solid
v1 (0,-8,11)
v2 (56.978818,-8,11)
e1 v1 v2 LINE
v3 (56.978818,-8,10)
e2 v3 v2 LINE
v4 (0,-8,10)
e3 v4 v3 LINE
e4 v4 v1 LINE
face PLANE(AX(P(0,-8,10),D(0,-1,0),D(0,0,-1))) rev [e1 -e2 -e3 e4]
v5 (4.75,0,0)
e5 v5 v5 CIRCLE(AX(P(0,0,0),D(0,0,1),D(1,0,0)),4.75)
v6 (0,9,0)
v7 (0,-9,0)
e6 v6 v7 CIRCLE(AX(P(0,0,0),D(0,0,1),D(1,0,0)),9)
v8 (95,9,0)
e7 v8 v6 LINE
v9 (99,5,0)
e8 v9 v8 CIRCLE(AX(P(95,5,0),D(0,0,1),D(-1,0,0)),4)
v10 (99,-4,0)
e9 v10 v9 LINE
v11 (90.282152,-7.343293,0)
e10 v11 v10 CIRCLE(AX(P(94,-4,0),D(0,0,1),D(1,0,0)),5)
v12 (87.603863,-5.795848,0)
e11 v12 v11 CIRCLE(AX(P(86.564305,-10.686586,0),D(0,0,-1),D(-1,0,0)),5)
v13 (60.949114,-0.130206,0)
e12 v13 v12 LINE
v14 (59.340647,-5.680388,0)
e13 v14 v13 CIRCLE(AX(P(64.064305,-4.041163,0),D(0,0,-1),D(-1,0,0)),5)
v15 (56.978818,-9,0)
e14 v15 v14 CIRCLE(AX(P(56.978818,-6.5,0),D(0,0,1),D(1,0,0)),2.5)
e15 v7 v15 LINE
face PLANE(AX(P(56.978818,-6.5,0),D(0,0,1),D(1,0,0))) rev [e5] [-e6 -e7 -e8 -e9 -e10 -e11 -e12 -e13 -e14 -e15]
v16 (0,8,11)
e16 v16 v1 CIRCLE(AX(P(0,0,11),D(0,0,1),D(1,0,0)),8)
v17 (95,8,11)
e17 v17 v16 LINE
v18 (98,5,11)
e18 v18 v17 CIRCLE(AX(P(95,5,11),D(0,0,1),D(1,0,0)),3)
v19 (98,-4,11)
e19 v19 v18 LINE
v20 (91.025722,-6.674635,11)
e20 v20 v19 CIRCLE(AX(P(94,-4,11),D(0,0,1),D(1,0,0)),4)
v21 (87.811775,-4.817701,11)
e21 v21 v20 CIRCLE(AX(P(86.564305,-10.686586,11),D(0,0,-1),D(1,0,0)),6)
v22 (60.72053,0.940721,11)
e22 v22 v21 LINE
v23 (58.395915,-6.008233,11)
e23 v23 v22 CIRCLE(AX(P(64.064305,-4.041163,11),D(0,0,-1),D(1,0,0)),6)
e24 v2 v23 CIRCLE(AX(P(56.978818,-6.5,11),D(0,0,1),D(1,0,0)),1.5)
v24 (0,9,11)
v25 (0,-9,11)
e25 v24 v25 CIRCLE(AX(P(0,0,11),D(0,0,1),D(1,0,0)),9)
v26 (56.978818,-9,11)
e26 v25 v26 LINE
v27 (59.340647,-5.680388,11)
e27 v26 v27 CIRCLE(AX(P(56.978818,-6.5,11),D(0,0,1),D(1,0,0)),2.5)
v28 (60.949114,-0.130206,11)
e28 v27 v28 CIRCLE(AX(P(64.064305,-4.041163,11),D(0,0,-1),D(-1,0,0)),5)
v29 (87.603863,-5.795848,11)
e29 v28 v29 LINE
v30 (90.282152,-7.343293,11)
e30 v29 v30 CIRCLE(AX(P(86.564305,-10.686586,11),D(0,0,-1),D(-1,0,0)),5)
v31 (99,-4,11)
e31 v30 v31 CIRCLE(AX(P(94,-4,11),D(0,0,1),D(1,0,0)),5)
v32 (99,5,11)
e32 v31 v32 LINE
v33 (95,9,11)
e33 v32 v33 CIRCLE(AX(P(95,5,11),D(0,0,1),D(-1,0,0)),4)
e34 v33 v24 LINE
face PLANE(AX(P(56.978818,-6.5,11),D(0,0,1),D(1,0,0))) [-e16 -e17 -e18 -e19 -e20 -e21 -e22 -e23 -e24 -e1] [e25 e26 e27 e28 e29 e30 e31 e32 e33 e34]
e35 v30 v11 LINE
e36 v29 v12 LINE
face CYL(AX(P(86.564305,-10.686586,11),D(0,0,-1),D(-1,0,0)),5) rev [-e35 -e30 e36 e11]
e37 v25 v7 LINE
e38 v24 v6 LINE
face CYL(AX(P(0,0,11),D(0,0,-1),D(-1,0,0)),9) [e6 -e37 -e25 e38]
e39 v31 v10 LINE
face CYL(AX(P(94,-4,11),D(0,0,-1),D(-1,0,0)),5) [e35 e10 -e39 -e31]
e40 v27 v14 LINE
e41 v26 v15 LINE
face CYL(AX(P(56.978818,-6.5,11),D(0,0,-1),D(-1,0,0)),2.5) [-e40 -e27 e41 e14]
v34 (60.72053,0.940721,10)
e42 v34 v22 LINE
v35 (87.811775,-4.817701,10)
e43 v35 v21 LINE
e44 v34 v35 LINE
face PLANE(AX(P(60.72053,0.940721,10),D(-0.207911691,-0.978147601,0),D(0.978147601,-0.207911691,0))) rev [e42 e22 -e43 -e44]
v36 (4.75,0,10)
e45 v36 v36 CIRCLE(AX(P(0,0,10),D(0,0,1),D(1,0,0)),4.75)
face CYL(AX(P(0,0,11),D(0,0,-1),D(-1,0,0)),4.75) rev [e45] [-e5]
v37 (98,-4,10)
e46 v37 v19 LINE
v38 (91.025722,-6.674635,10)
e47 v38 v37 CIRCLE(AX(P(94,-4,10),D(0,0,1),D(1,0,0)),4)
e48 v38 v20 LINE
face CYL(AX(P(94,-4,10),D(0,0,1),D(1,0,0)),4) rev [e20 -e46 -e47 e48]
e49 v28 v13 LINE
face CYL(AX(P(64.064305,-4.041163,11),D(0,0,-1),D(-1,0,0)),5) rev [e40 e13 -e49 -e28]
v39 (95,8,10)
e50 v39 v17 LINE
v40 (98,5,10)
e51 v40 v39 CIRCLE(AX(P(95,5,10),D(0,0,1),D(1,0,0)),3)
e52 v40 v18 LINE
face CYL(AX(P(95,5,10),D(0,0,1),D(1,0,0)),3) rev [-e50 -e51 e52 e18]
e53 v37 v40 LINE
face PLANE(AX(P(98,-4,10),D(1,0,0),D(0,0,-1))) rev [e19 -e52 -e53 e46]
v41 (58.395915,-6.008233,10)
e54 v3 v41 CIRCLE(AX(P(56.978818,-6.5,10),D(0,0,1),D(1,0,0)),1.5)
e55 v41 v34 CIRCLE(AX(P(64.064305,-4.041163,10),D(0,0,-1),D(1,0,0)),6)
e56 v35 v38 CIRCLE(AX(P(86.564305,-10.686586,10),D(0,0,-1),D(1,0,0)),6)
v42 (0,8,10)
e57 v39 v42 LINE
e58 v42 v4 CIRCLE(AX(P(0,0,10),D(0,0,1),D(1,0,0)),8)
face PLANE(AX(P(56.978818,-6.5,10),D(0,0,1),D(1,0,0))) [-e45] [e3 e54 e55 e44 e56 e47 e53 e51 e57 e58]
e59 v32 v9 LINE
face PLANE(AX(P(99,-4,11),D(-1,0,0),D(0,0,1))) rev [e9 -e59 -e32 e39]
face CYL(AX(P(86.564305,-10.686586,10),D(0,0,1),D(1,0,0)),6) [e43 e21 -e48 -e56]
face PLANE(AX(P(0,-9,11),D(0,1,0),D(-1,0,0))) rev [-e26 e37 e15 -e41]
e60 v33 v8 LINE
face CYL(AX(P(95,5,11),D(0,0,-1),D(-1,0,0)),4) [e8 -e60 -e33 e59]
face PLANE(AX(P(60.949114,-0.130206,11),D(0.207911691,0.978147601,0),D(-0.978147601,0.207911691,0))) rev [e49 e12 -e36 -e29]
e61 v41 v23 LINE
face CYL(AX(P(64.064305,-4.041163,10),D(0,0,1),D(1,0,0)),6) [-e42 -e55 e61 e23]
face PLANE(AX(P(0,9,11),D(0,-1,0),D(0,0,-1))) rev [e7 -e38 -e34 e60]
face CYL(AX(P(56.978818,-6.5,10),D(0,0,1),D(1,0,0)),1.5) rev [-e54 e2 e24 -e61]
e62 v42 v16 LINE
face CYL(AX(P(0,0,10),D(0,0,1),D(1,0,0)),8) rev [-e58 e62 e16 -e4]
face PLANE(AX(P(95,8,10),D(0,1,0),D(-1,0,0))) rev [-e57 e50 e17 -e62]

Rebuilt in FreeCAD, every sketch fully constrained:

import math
import FreeCAD as App
import Part
import Sketcher
from FreeCAD import Vector
Q = App.Units.Quantity

doc = App.newDocument("Part")
body = doc.addObject("PartDesign::Body", "Body")

# Sketch on XY plane
sketch1 = body.newObject("Sketcher::SketchObject", "Sketch")
sketch1.AttachmentSupport = (doc.getObject("XY_Plane"), [""])
sketch1.MapMode = "FlatFace"
sketch1.addGeometry([
    Part.LineSegment(Vector(0, -9, 0), Vector(57, -9, 0)),  # 0
    Part.ArcOfCircle(Part.Circle(Vector(57, -6.5, 0), Vector(0, 0, 1), 2.5), math.radians(-90), math.radians(19)),  # 1
    Part.ArcOfCircle(Part.Circle(Vector(64.1, -4, 0), Vector(0, 0, 1), 5), math.radians(129), math.radians(199)),  # 2
    Part.LineSegment(Vector(60.9, -0.1, 0), Vector(87.6, -5.8, 0)),  # 3
    Part.ArcOfCircle(Part.Circle(Vector(86.6, -10.7, 0), Vector(0, 0, 1), 5), math.radians(42), math.radians(78)),  # 4
    Part.ArcOfCircle(Part.Circle(Vector(94, -4, 0), Vector(0, 0, 1), 5), math.radians(-138), math.radians(0)),  # 5
    Part.LineSegment(Vector(99, -4, 0), Vector(99, 5, 0)),  # 6
    Part.ArcOfCircle(Part.Circle(Vector(95, 5, 0), Vector(0, 0, 1), 4), math.radians(0), math.radians(90)),  # 7
    Part.LineSegment(Vector(95, 9, 0), Vector(0, 9, 0)),  # 8
    Part.ArcOfCircle(Part.Circle(Vector(0, 0, 0), Vector(0, 0, 1), 9), math.radians(90), math.radians(270)),  # 9
    Part.Circle(Vector(0, 0, 0), Vector(0, 0, 1), 4.8),  # 10
], False)
sketch1.addConstraint([
    Sketcher.Constraint("Tangent", 0, 2, 1, 1),
    Sketcher.Constraint("Tangent", 1, 2, 2, 2),
    Sketcher.Constraint("Coincident", 2, 1, 3, 1),
    Sketcher.Constraint("Tangent", 3, 2, 4, 2),
    Sketcher.Constraint("Tangent", 4, 1, 5, 1),
    Sketcher.Constraint("Tangent", 5, 2, 6, 1),
    Sketcher.Constraint("Tangent", 6, 2, 7, 1),
    Sketcher.Constraint("Tangent", 7, 2, 8, 1),
    Sketcher.Constraint("Tangent", 8, 2, 9, 1),
    Sketcher.Constraint("Tangent", 9, 2, 0, 1),
    Sketcher.Constraint("Horizontal", 0),
    Sketcher.Constraint("Vertical", 6),
    Sketcher.Constraint("Horizontal", 8),
    Sketcher.Constraint("Coincident", 9, 3, -1, 1),
    Sketcher.Constraint("Coincident", 10, 3, -1, 1),
    Sketcher.Constraint("Equal", 2, 4),
    Sketcher.Constraint("Equal", 4, 5),
    Sketcher.Constraint("Radius", 2, Q("5 mm")),
    Sketcher.Constraint("Radius", 7, Q("4 mm")),
    Sketcher.Constraint("Radius", 9, Q("9 mm")),
    Sketcher.Constraint("Diameter", 10, Q("9.5 mm")),
    Sketcher.Constraint("Radius", 1, Q("2.5 mm")),
    Sketcher.Constraint("DistanceX", 8, 2, 8, 1, Q("95 mm")),
    Sketcher.Constraint("DistanceY", 6, 1, 6, 2, Q("9 mm")),
    Sketcher.Constraint("Angle", 3, Q("-12 deg")),
    Sketcher.Constraint("DistanceX", 2, 3, 4, 3, Q("22.5 mm")),
    Sketcher.Constraint("DistanceX", 0, 1, 0, 2, Q("56.978818 mm")),
    Sketcher.Constraint("DistanceY", 4, 3, 1, 2, Q("5.006199 mm")),
])
pad1 = body.newObject("PartDesign::Pad", "Pad")
pad1.Profile = sketch1
pad1.Length = 11

# Sketch on XY plane
sketch2 = body.newObject("Sketcher::SketchObject", "Sketch001")
sketch2.AttachmentSupport = (doc.getObject("XY_Plane"), [""])
sketch2.MapMode = "FlatFace"
sketch2.AttachmentOffset = App.Placement(Vector(0, 0, 11), App.Rotation())
sketch2.addGeometry([
    Part.LineSegment(Vector(60.7, 0.9, 0), Vector(87.8, -4.8, 0)),  # 0
    Part.ArcOfCircle(Part.Circle(Vector(86.6, -10.7, 0), Vector(0, 0, 1), 6), math.radians(42), math.radians(78)),  # 1
    Part.ArcOfCircle(Part.Circle(Vector(94, -4, 0), Vector(0, 0, 1), 4), math.radians(-138), math.radians(0)),  # 2
    Part.LineSegment(Vector(98, -4, 0), Vector(98, 5, 0)),  # 3
    Part.ArcOfCircle(Part.Circle(Vector(95, 5, 0), Vector(0, 0, 1), 3), math.radians(0), math.radians(90)),  # 4
    Part.LineSegment(Vector(95, 8, 0), Vector(0, 8, 0)),  # 5
    Part.ArcOfCircle(Part.Circle(Vector(0, 0, 0), Vector(0, 0, 1), 8), math.radians(90), math.radians(270)),  # 6
    Part.LineSegment(Vector(0, -8, 0), Vector(57, -8, 0)),  # 7
    Part.ArcOfCircle(Part.Circle(Vector(57, -6.5, 0), Vector(0, 0, 1), 1.5), math.radians(-90), math.radians(19)),  # 8
    Part.ArcOfCircle(Part.Circle(Vector(64.1, -4, 0), Vector(0, 0, 1), 6), math.radians(124), math.radians(199)),  # 9
], False)
sketch2.addConstraint([
    Sketcher.Constraint("Tangent", 0, 2, 1, 2),
    Sketcher.Constraint("Tangent", 1, 1, 2, 1),
    Sketcher.Constraint("Tangent", 2, 2, 3, 1),
    Sketcher.Constraint("Tangent", 3, 2, 4, 1),
    Sketcher.Constraint("Tangent", 4, 2, 5, 1),
    Sketcher.Constraint("Tangent", 5, 2, 6, 1),
    Sketcher.Constraint("Tangent", 6, 2, 7, 1),
    Sketcher.Constraint("Tangent", 7, 2, 8, 1),
    Sketcher.Constraint("Tangent", 8, 2, 9, 2),
    Sketcher.Constraint("Coincident", 9, 1, 0, 1),
    Sketcher.Constraint("Vertical", 3),
    Sketcher.Constraint("Horizontal", 5),
    Sketcher.Constraint("Horizontal", 7),
    Sketcher.Constraint("Coincident", 6, 3, -1, 1),
    Sketcher.Constraint("Equal", 1, 9),
    Sketcher.Constraint("Radius", 1, Q("6 mm")),
    Sketcher.Constraint("Radius", 2, Q("4 mm")),
    Sketcher.Constraint("Radius", 4, Q("3 mm")),
    Sketcher.Constraint("Radius", 6, Q("8 mm")),
    Sketcher.Constraint("Radius", 8, Q("1.5 mm")),
    Sketcher.Constraint("DistanceX", 5, 2, 5, 1, Q("95 mm")),
    Sketcher.Constraint("DistanceY", 3, 1, 3, 2, Q("9 mm")),
    Sketcher.Constraint("Angle", 0, Q("-12 deg")),
    Sketcher.Constraint("DistanceX", 9, 3, 1, 3, Q("22.5 mm")),
    Sketcher.Constraint("DistanceX", 7, 1, 7, 2, Q("56.978818 mm")),
    Sketcher.Constraint("DistanceY", 0, 2, -1, 1, Q("4.817701 mm")),
])
pocket1 = body.newObject("PartDesign::Pocket", "Pocket")
pocket1.Profile = sketch2
pocket1.Length = 1

doc.recompute()
